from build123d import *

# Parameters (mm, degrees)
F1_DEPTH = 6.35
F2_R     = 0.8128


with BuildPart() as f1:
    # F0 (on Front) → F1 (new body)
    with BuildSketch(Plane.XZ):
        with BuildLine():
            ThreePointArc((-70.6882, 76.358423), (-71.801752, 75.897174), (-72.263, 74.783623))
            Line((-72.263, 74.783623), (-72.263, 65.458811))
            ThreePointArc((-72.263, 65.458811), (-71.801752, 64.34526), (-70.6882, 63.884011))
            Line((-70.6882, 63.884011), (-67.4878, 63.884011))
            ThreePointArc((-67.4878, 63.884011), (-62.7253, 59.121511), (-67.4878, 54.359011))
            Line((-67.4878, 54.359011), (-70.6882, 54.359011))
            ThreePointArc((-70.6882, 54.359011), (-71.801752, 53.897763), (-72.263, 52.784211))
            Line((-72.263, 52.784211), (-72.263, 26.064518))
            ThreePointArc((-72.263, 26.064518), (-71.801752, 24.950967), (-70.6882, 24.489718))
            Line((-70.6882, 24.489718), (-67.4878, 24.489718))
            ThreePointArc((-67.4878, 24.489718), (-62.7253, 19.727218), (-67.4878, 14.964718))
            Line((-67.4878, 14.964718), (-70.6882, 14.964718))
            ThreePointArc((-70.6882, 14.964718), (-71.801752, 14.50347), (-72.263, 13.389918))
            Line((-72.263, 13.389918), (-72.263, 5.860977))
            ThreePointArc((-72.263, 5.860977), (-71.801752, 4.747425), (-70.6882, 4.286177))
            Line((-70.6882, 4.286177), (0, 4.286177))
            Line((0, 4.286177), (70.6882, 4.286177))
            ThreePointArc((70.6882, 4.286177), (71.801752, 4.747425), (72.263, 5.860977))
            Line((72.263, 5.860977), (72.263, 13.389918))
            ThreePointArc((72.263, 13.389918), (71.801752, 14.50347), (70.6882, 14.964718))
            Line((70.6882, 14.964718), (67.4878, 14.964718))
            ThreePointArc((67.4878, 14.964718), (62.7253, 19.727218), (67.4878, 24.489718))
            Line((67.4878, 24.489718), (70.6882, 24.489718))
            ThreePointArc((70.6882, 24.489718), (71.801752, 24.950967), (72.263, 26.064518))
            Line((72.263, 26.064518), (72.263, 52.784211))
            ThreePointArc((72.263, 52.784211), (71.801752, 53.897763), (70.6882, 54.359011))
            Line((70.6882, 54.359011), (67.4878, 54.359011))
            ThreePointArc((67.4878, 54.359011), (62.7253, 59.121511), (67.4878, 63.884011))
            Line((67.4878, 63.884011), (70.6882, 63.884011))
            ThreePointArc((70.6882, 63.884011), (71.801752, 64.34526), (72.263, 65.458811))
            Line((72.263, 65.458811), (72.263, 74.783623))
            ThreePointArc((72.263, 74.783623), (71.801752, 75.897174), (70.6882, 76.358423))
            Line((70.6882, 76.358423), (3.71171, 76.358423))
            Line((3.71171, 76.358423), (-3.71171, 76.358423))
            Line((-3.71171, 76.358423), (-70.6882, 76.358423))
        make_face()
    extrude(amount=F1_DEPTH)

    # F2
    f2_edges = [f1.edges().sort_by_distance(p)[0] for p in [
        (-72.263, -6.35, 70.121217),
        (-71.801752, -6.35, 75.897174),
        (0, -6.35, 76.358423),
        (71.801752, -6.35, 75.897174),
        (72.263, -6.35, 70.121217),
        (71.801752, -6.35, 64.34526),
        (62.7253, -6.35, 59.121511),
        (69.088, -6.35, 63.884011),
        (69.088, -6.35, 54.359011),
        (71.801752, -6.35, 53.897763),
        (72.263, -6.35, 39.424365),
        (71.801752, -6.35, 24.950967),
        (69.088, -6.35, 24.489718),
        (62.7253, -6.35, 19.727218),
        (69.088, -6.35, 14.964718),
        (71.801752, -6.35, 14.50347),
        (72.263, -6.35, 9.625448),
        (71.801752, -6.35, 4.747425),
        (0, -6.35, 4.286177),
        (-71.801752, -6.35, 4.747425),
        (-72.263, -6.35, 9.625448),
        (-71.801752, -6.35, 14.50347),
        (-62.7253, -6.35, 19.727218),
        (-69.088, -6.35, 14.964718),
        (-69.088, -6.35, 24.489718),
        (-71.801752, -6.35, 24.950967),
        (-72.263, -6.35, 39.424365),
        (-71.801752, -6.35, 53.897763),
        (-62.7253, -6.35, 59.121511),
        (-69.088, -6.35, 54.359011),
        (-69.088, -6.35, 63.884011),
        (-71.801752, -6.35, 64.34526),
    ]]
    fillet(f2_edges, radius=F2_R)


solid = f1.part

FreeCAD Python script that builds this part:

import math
import FreeCAD as App
import Part
import Sketcher

V = App.Vector
Q = App.Units.Quantity


def edges_at(feature, points):
    """Names of the edges that pass closest to the given points."""
    edges = feature.Shape.Edges
    near = lambda p: min(range(len(edges)), key=lambda i: edges[i].distToShape(Part.Vertex(*p))[0])
    return sorted({f"Edge{near(p) + 1}" for p in points})

doc = App.newDocument("Part")
body = doc.addObject("PartDesign::Body", "Body")

# Sketch on XZ plane
sketch1 = doc.addObject("Sketcher::SketchObject", "Sketch")
body.addObject(sketch1)
sketch1.AttachmentSupport = (doc.XZ_Plane, [""])
sketch1.MapMode = "FlatFace"
sketch1.addGeometry([
    Part.ArcOfCircle(Part.Circle(V(-70.7, 74.8, 0), V(0, 0, 1), 1.6), math.radians(90), math.radians(180)),  # 0
    Part.LineSegment(V(-72.3, 74.8, 0), V(-72.3, 65.5, 0)),  # 1
    Part.ArcOfCircle(Part.Circle(V(-70.7, 65.5, 0), V(0, 0, 1), 1.6), math.radians(-180), math.radians(-90)),  # 2
    Part.LineSegment(V(-70.7, 63.9, 0), V(-67.5, 63.9, 0)),  # 3
    Part.ArcOfCircle(Part.Circle(V(-67.5, 59.1, 0), V(0, 0, 1), 4.8), math.radians(-90), math.radians(90)),  # 4
    Part.LineSegment(V(-67.5, 54.4, 0), V(-70.7, 54.4, 0)),  # 5
    Part.ArcOfCircle(Part.Circle(V(-70.7, 52.8, 0), V(0, 0, 1), 1.6), math.radians(90), math.radians(180)),  # 6
    Part.LineSegment(V(-72.3, 52.8, 0), V(-72.3, 26.1, 0)),  # 7
    Part.ArcOfCircle(Part.Circle(V(-70.7, 26.1, 0), V(0, 0, 1), 1.6), math.radians(-180), math.radians(-90)),  # 8
    Part.LineSegment(V(-70.7, 24.5, 0), V(-67.5, 24.5, 0)),  # 9
    Part.ArcOfCircle(Part.Circle(V(-67.5, 19.7, 0), V(0, 0, 1), 4.8), math.radians(-90), math.radians(90)),  # 10
    Part.LineSegment(V(-67.5, 15, 0), V(-70.7, 15, 0)),  # 11
    Part.ArcOfCircle(Part.Circle(V(-70.7, 13.4, 0), V(0, 0, 1), 1.6), math.radians(90), math.radians(180)),  # 12
    Part.LineSegment(V(-72.3, 13.4, 0), V(-72.3, 5.9, 0)),  # 13
    Part.ArcOfCircle(Part.Circle(V(-70.7, 5.9, 0), V(0, 0, 1), 1.6), math.radians(180), math.radians(270)),  # 14
    Part.LineSegment(V(-70.7, 4.3, 0), V(70.7, 4.3, 0)),  # 15
    Part.ArcOfCircle(Part.Circle(V(70.7, 5.9, 0), V(0, 0, 1), 1.6), math.radians(-90), math.radians(0)),  # 16
    Part.LineSegment(V(72.3, 5.9, 0), V(72.3, 13.4, 0)),  # 17
    Part.ArcOfCircle(Part.Circle(V(70.7, 13.4, 0), V(0, 0, 1), 1.6), math.radians(0), math.radians(90)),  # 18
    Part.LineSegment(V(70.7, 15, 0), V(67.5, 15, 0)),  # 19
    Part.ArcOfCircle(Part.Circle(V(67.5, 19.7, 0), V(0, 0, 1), 4.8), math.radians(90), math.radians(270)),  # 20
    Part.LineSegment(V(67.5, 24.5, 0), V(70.7, 24.5, 0)),  # 21
    Part.ArcOfCircle(Part.Circle(V(70.7, 26.1, 0), V(0, 0, 1), 1.6), math.radians(-90), math.radians(0)),  # 22
    Part.LineSegment(V(72.3, 26.1, 0), V(72.3, 52.8, 0)),  # 23
    Part.ArcOfCircle(Part.Circle(V(70.7, 52.8, 0), V(0, 0, 1), 1.6), math.radians(0), math.radians(90)),  # 24
    Part.LineSegment(V(70.7, 54.4, 0), V(67.5, 54.4, 0)),  # 25
    Part.ArcOfCircle(Part.Circle(V(67.5, 59.1, 0), V(0, 0, 1), 4.8), math.radians(90), math.radians(270)),  # 26
    Part.LineSegment(V(67.5, 63.9, 0), V(70.7, 63.9, 0)),  # 27
    Part.ArcOfCircle(Part.Circle(V(70.7, 65.5, 0), V(0, 0, 1), 1.6), math.radians(-90), math.radians(0)),  # 28
    Part.LineSegment(V(72.3, 65.5, 0), V(72.3, 74.8, 0)),  # 29
    Part.ArcOfCircle(Part.Circle(V(70.7, 74.8, 0), V(0, 0, 1), 1.6), math.radians(0), math.radians(90)),  # 30
    Part.LineSegment(V(70.7, 76.4, 0), V(-70.7, 76.4, 0)),  # 31
], False)
sketch1.addConstraint([
    Sketcher.Constraint("Tangent", 0, 2, 1, 1),
    Sketcher.Constraint("Tangent", 1, 2, 2, 1),
    Sketcher.Constraint("Tangent", 2, 2, 3, 1),
    Sketcher.Constraint("Tangent", 3, 2, 4, 2),
    Sketcher.Constraint("Tangent", 4, 1, 5, 1),
    Sketcher.Constraint("Tangent", 5, 2, 6, 1),
    Sketcher.Constraint("Tangent", 6, 2, 7, 1),
    Sketcher.Constraint("Tangent", 7, 2, 8, 1),
    Sketcher.Constraint("Tangent", 8, 2, 9, 1),
    Sketcher.Constraint("Tangent", 9, 2, 10, 2),
    Sketcher.Constraint("Tangent", 10, 1, 11, 1),
    Sketcher.Constraint("Tangent", 11, 2, 12, 1),
    Sketcher.Constraint("Tangent", 12, 2, 13, 1),
    Sketcher.Constraint("Tangent", 13, 2, 14, 1),
    Sketcher.Constraint("Tangent", 14, 2, 15, 1),
    Sketcher.Constraint("Tangent", 15, 2, 16, 1),
    Sketcher.Constraint("Tangent", 16, 2, 17, 1),
    Sketcher.Constraint("Tangent", 17, 2, 18, 1),
    Sketcher.Constraint("Tangent", 18, 2, 19, 1),
    Sketcher.Constraint("Tangent", 19, 2, 20, 2),
    Sketcher.Constraint("Tangent", 20, 1, 21, 1),
    Sketcher.Constraint("Tangent", 21, 2, 22, 1),
    Sketcher.Constraint("Tangent", 22, 2, 23, 1),
    Sketcher.Constraint("Tangent", 23, 2, 24, 1),
    Sketcher.Constraint("Tangent", 24, 2, 25, 1),
    Sketcher.Constraint("Tangent", 25, 2, 26, 2),
    Sketcher.Constraint("Tangent", 26, 1, 27, 1),
    Sketcher.Constraint("Tangent", 27, 2, 28, 1),
    Sketcher.Constraint("Tangent", 28, 2, 29, 1),
    Sketcher.Constraint("Tangent", 29, 2, 30, 1),
    Sketcher.Constraint("Tangent", 30, 2, 31, 1),
    Sketcher.Constraint("Tangent", 31, 2, 0, 1),
    Sketcher.Constraint("Vertical", 1),
    Sketcher.Constraint("Horizontal", 3),
    Sketcher.Constraint("Horizontal", 5),
    Sketcher.Constraint("Vertical", 7),
    Sketcher.Constraint("Horizontal", 9),
    Sketcher.Constraint("Horizontal", 11),
    Sketcher.Constraint("Vertical", 13),
    Sketcher.Constraint("Horizontal", 15),
    Sketcher.Constraint("Vertical", 17),
    Sketcher.Constraint("Horizontal", 19),
    Sketcher.Constraint("Horizontal", 21),
    Sketcher.Constraint("Vertical", 23),
    Sketcher.Constraint("Horizontal", 25),
    Sketcher.Constraint("Horizontal", 27),
    Sketcher.Constraint("Vertical", 29),
    Sketcher.Constraint("Horizontal", 31),
    Sketcher.Constraint("Equal", 0, 2),
    Sketcher.Constraint("Equal", 2, 6),
    Sketcher.Constraint("Equal", 6, 8),
    Sketcher.Constraint("Equal", 4, 10),
    Sketcher.Constraint("Equal", 8, 12),
    Sketcher.Constraint("Equal", 12, 14),
    Sketcher.Constraint("Equal", 14, 16),
    Sketcher.Constraint("Equal", 16, 18),
    Sketcher.Constraint("Equal", 10, 20),
    Sketcher.Constraint("Equal", 18, 22),
    Sketcher.Constraint("Equal", 22, 24),
    Sketcher.Constraint("Equal", 20, 26),
    Sketcher.Constraint("Equal", 24, 28),
    Sketcher.Constraint("Equal", 28, 30),
    Sketcher.Constraint("Symmetric", 12, 3, 18, 3, -2),
    Sketcher.Constraint("Symmetric", 6, 3, 24, 3, -2),
    Sketcher.Constraint("Vertical", 2, 3, 6, 3),
    Sketcher.Constraint("Vertical", 4, 3, 10, 3),
    Sketcher.Constraint("Vertical", 8, 3, 12, 3),
    Sketcher.Constraint("Vertical", 20, 3, 26, 3),
    Sketcher.Constraint("Vertical", 24, 3, 28, 3),
    Sketcher.Constraint("Equal", 11, 19),
    Sketcher.Constraint("Radius", 0, Q("0.062 in")),
    Sketcher.Constraint("Radius", 4, Q("0.1875 in")),
    Sketcher.Constraint("DistanceX", 3, 1, 3, 2, Q("0.126 in")),
    Sketcher.Constraint("DistanceX", 15, 1, 15, 2, Q("5.566 in")),
    Sketcher.Constraint("DistanceY", 13, 2, 13, 1, 7.528941),
    Sketcher.Constraint("DistanceY", 1, 2, 1, 1, 9.324812),
    Sketcher.Constraint("DistanceY", 7, 2, 7, 1, 26.719693),
    Sketcher.Constraint("DistanceY", -1, 1, 2, 3, 65.458812),
])
pad1 = doc.addObject("PartDesign::Pad", "Pad")
body.addObject(pad1)
pad1.Profile = sketch1
pad1.Length = Q("0.25 in")
doc.recompute()

fillet = doc.addObject("PartDesign::Fillet", "Fillet")
body.addObject(fillet)
fillet.Base = (pad1, edges_at(pad1, [
    (-72.263, -6.35, 70.121),
    (-71.802, -6.35, 75.897),
    (0, -6.35, 76.358),
    (71.802, -6.35, 75.897),
    (72.263, -6.35, 70.121),
    (71.802, -6.35, 64.345),
    (62.725, -6.35, 59.122),
    (69.088, -6.35, 63.884),
    (69.088, -6.35, 54.359),
    (71.802, -6.35, 53.898),
    (72.263, -6.35, 39.424),
    (71.802, -6.35, 24.951),
    (69.088, -6.35, 24.49),
    (62.725, -6.35, 19.727),
    (69.088, -6.35, 14.965),
    (71.802, -6.35, 14.503),
    (72.263, -6.35, 9.625),
    (71.802, -6.35, 4.747),
    (0, -6.35, 4.286),
    (-71.802, -6.35, 4.747),
    (-72.263, -6.35, 9.625),
    (-71.802, -6.35, 14.503),
    (-62.725, -6.35, 19.727),
    (-69.088, -6.35, 14.965),
    (-69.088, -6.35, 24.49),
    (-71.802, -6.35, 24.951),
    (-72.263, -6.35, 39.424),
    (-71.802, -6.35, 53.898),
    (-62.725, -6.35, 59.122),
    (-69.088, -6.35, 54.359),
    (-69.088, -6.35, 63.884),
    (-71.802, -6.35, 64.345),
]))
fillet.Radius = Q("0.032 in")

doc.recompute()
